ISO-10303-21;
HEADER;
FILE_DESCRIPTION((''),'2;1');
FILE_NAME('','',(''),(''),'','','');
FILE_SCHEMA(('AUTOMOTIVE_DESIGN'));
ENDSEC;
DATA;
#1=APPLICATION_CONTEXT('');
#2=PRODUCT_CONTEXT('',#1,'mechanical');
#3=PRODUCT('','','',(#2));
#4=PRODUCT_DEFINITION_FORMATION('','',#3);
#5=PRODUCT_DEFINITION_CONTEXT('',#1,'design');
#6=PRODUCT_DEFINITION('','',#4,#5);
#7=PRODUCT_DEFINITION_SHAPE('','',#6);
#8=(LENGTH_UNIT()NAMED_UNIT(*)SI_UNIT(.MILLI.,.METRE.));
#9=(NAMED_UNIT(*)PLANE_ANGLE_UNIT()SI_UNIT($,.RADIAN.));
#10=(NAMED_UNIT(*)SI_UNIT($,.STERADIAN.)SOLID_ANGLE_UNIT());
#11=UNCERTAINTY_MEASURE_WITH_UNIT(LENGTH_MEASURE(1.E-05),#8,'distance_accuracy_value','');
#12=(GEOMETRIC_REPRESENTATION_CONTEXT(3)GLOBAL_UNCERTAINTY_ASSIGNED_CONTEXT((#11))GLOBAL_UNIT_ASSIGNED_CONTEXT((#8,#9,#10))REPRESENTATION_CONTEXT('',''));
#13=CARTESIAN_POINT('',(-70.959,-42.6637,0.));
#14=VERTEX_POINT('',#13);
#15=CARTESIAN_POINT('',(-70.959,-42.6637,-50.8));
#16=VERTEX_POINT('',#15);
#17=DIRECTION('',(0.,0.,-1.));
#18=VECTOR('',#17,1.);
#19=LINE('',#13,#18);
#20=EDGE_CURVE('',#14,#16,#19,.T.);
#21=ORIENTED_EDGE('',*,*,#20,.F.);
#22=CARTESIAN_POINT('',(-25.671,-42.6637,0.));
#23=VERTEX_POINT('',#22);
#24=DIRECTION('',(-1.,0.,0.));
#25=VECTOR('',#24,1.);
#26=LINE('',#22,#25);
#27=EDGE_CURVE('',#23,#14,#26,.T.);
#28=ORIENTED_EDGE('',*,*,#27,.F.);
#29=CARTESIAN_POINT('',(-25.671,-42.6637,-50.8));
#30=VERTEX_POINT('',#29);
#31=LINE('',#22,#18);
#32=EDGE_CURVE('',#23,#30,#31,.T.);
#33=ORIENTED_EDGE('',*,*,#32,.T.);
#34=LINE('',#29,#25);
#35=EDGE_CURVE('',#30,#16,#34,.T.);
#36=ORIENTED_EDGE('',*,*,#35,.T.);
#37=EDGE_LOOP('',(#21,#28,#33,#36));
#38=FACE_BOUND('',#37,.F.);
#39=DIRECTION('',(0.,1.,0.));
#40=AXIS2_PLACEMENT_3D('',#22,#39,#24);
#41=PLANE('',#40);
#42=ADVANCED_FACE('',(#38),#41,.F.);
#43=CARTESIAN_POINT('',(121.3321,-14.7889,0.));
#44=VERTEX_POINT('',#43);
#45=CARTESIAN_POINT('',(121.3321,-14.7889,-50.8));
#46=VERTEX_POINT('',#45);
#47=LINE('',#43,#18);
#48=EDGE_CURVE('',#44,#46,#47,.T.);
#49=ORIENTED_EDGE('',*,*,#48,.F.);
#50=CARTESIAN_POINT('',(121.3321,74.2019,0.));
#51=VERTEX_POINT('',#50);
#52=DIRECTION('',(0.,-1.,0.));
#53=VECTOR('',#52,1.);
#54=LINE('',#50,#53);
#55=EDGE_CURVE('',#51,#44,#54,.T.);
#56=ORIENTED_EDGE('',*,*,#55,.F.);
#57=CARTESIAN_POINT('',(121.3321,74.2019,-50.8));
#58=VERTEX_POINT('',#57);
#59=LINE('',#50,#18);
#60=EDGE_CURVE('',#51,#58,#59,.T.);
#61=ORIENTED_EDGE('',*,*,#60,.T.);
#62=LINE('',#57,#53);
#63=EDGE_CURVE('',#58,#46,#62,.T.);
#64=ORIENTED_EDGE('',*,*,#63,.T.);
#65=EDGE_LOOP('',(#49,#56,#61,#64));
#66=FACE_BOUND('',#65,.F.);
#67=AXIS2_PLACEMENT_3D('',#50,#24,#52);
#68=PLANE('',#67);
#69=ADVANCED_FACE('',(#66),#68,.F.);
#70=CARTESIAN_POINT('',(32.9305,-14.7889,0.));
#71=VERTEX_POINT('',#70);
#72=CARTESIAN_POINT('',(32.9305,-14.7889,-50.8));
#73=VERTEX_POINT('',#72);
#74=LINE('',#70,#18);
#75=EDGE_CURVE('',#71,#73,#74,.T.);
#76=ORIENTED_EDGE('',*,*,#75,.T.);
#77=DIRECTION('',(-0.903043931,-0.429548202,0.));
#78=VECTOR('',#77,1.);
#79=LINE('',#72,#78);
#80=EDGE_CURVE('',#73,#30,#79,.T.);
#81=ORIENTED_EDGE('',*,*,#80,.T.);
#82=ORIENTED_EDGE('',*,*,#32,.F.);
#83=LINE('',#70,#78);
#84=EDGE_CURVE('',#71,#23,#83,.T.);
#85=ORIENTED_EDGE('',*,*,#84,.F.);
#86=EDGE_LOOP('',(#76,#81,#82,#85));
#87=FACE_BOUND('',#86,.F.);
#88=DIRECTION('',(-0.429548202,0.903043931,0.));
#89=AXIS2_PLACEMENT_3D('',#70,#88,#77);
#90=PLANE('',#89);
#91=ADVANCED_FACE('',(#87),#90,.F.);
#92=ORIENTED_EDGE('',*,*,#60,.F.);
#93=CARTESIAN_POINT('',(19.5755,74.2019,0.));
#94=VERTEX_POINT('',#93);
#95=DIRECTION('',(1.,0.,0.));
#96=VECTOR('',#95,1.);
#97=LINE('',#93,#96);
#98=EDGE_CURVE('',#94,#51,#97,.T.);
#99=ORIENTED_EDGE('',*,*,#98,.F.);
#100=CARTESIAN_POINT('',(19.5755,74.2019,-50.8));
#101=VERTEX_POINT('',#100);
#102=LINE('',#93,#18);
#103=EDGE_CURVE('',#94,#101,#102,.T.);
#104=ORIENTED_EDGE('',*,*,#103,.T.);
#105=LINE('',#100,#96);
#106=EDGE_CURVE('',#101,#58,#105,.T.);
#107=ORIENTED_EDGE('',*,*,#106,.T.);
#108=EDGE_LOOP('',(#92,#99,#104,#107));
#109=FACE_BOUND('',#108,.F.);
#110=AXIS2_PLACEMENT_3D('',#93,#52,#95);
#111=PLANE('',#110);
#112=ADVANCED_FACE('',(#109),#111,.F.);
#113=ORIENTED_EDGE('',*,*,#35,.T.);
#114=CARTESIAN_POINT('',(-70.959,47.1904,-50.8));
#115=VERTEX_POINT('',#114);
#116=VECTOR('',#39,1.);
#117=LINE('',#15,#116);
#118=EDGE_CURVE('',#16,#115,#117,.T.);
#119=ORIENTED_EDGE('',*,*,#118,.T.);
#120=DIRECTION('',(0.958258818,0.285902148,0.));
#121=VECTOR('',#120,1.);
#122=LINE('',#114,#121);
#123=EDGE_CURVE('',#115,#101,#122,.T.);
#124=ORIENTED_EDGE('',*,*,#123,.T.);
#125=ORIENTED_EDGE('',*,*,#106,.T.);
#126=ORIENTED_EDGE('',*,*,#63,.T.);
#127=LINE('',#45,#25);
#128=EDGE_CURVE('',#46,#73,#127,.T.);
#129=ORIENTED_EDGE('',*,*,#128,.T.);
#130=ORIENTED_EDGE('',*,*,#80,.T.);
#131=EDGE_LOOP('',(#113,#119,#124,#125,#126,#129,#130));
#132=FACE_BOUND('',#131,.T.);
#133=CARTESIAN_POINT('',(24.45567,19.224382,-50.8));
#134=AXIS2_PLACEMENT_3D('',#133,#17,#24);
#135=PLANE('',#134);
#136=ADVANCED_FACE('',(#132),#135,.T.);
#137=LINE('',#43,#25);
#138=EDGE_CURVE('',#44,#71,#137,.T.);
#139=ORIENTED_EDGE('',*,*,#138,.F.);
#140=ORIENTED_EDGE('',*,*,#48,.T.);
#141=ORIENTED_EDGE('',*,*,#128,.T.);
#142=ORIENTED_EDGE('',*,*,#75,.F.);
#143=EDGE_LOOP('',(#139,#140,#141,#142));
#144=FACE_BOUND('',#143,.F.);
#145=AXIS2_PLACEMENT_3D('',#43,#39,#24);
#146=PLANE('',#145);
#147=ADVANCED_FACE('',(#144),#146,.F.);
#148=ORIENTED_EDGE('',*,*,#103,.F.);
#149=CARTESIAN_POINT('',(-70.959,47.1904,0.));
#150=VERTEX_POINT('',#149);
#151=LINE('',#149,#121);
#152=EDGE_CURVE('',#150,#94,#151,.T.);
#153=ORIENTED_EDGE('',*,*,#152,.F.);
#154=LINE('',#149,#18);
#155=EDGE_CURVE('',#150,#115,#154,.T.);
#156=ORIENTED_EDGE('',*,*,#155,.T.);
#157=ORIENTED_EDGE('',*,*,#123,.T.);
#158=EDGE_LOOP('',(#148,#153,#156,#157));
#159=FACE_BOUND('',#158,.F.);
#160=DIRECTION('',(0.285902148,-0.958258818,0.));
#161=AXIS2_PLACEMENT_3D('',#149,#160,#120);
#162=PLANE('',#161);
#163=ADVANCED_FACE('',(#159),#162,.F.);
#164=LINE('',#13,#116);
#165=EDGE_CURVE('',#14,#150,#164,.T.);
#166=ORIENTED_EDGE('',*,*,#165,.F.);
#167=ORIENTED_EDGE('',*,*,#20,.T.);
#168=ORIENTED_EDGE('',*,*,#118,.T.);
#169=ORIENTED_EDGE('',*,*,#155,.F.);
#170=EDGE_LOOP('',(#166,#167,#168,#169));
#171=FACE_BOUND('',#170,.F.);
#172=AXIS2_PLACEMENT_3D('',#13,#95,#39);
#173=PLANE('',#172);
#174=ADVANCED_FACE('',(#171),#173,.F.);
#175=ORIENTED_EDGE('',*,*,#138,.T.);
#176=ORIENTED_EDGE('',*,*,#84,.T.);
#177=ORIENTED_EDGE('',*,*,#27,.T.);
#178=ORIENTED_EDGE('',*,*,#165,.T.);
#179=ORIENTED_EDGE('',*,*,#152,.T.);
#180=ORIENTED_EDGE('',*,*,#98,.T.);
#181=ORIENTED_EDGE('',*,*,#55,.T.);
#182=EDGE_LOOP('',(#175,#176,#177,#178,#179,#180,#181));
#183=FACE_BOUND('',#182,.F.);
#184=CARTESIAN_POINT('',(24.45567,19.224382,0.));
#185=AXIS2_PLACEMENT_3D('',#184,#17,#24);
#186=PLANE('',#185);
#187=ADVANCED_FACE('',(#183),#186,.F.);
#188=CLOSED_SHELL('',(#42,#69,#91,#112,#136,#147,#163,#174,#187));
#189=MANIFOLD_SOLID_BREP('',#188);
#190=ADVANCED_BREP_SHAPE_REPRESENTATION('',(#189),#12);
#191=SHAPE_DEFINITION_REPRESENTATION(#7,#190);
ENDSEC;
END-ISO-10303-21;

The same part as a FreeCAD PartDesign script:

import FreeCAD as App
import Part
import Sketcher

V = App.Vector
Q = App.Units.Quantity


def add_polygon(sketch, points):
    """Adds a closed chain of lines whose ends are joined by coincident constraints."""
    first, n = sketch.GeometryCount, len(points)
    for a, b in zip(points, points[1:] + points[:1]):
        sketch.addGeometry(Part.LineSegment(App.Vector(*a, 0), App.Vector(*b, 0)), False)
    for i in range(n):
        sketch.addConstraint(Sketcher.Constraint("Coincident", first + i, 2, first + (i + 1) % n, 1))

doc = App.newDocument("Part")
body = doc.addObject("PartDesign::Body", "Body")

sketch1 = doc.addObject("Sketcher::SketchObject", "Sketch")
body.addObject(sketch1)
sketch1.AttachmentSupport = (doc.XY_Plane, [""])
sketch1.MapMode = "FlatFace"
add_polygon(sketch1, [(-71, 47), (-71, -43), (-26, -43), (33, -15), (121, -15), (121, 74), (20, 74)])
sketch1.addConstraint([
    Sketcher.Constraint("Vertical", 0),
    Sketcher.Constraint("Horizontal", 1),
    Sketcher.Constraint("Horizontal", 3),
    Sketcher.Constraint("Vertical", 4),
    Sketcher.Constraint("Horizontal", 5),
    Sketcher.Constraint("DistanceX", 1, 1, 1, 2, Q("1.783 in")),
    Sketcher.Constraint("Angle", 2, Q("25.439 deg")),
    Sketcher.Constraint("DistanceY", 1, 2, 4, 2, Q("4.601 in")),
    Sketcher.Constraint("Distance", 6, Q("3.7196 in")),
    Sketcher.Constraint("DistanceX", 3, 1, 3, 2, 88.4016),
    Sketcher.Constraint("DistanceX", 5, 2, 5, 1, 101.7566),
    Sketcher.Constraint("DistanceY", 0, 2, 0, 1, 89.854),
    Sketcher.Constraint("DistanceX", -1, 1, 5, 2, Q("0.7707 in")),
    Sketcher.Constraint("DistanceY", -1, 1, 6, 2, Q("1.8579 in")),
])
pad1 = doc.addObject("PartDesign::Pad", "Pad")
body.addObject(pad1)
pad1.Profile = sketch1
pad1.Length = Q("2 in")
pad1.Reversed = True

doc.recompute()
